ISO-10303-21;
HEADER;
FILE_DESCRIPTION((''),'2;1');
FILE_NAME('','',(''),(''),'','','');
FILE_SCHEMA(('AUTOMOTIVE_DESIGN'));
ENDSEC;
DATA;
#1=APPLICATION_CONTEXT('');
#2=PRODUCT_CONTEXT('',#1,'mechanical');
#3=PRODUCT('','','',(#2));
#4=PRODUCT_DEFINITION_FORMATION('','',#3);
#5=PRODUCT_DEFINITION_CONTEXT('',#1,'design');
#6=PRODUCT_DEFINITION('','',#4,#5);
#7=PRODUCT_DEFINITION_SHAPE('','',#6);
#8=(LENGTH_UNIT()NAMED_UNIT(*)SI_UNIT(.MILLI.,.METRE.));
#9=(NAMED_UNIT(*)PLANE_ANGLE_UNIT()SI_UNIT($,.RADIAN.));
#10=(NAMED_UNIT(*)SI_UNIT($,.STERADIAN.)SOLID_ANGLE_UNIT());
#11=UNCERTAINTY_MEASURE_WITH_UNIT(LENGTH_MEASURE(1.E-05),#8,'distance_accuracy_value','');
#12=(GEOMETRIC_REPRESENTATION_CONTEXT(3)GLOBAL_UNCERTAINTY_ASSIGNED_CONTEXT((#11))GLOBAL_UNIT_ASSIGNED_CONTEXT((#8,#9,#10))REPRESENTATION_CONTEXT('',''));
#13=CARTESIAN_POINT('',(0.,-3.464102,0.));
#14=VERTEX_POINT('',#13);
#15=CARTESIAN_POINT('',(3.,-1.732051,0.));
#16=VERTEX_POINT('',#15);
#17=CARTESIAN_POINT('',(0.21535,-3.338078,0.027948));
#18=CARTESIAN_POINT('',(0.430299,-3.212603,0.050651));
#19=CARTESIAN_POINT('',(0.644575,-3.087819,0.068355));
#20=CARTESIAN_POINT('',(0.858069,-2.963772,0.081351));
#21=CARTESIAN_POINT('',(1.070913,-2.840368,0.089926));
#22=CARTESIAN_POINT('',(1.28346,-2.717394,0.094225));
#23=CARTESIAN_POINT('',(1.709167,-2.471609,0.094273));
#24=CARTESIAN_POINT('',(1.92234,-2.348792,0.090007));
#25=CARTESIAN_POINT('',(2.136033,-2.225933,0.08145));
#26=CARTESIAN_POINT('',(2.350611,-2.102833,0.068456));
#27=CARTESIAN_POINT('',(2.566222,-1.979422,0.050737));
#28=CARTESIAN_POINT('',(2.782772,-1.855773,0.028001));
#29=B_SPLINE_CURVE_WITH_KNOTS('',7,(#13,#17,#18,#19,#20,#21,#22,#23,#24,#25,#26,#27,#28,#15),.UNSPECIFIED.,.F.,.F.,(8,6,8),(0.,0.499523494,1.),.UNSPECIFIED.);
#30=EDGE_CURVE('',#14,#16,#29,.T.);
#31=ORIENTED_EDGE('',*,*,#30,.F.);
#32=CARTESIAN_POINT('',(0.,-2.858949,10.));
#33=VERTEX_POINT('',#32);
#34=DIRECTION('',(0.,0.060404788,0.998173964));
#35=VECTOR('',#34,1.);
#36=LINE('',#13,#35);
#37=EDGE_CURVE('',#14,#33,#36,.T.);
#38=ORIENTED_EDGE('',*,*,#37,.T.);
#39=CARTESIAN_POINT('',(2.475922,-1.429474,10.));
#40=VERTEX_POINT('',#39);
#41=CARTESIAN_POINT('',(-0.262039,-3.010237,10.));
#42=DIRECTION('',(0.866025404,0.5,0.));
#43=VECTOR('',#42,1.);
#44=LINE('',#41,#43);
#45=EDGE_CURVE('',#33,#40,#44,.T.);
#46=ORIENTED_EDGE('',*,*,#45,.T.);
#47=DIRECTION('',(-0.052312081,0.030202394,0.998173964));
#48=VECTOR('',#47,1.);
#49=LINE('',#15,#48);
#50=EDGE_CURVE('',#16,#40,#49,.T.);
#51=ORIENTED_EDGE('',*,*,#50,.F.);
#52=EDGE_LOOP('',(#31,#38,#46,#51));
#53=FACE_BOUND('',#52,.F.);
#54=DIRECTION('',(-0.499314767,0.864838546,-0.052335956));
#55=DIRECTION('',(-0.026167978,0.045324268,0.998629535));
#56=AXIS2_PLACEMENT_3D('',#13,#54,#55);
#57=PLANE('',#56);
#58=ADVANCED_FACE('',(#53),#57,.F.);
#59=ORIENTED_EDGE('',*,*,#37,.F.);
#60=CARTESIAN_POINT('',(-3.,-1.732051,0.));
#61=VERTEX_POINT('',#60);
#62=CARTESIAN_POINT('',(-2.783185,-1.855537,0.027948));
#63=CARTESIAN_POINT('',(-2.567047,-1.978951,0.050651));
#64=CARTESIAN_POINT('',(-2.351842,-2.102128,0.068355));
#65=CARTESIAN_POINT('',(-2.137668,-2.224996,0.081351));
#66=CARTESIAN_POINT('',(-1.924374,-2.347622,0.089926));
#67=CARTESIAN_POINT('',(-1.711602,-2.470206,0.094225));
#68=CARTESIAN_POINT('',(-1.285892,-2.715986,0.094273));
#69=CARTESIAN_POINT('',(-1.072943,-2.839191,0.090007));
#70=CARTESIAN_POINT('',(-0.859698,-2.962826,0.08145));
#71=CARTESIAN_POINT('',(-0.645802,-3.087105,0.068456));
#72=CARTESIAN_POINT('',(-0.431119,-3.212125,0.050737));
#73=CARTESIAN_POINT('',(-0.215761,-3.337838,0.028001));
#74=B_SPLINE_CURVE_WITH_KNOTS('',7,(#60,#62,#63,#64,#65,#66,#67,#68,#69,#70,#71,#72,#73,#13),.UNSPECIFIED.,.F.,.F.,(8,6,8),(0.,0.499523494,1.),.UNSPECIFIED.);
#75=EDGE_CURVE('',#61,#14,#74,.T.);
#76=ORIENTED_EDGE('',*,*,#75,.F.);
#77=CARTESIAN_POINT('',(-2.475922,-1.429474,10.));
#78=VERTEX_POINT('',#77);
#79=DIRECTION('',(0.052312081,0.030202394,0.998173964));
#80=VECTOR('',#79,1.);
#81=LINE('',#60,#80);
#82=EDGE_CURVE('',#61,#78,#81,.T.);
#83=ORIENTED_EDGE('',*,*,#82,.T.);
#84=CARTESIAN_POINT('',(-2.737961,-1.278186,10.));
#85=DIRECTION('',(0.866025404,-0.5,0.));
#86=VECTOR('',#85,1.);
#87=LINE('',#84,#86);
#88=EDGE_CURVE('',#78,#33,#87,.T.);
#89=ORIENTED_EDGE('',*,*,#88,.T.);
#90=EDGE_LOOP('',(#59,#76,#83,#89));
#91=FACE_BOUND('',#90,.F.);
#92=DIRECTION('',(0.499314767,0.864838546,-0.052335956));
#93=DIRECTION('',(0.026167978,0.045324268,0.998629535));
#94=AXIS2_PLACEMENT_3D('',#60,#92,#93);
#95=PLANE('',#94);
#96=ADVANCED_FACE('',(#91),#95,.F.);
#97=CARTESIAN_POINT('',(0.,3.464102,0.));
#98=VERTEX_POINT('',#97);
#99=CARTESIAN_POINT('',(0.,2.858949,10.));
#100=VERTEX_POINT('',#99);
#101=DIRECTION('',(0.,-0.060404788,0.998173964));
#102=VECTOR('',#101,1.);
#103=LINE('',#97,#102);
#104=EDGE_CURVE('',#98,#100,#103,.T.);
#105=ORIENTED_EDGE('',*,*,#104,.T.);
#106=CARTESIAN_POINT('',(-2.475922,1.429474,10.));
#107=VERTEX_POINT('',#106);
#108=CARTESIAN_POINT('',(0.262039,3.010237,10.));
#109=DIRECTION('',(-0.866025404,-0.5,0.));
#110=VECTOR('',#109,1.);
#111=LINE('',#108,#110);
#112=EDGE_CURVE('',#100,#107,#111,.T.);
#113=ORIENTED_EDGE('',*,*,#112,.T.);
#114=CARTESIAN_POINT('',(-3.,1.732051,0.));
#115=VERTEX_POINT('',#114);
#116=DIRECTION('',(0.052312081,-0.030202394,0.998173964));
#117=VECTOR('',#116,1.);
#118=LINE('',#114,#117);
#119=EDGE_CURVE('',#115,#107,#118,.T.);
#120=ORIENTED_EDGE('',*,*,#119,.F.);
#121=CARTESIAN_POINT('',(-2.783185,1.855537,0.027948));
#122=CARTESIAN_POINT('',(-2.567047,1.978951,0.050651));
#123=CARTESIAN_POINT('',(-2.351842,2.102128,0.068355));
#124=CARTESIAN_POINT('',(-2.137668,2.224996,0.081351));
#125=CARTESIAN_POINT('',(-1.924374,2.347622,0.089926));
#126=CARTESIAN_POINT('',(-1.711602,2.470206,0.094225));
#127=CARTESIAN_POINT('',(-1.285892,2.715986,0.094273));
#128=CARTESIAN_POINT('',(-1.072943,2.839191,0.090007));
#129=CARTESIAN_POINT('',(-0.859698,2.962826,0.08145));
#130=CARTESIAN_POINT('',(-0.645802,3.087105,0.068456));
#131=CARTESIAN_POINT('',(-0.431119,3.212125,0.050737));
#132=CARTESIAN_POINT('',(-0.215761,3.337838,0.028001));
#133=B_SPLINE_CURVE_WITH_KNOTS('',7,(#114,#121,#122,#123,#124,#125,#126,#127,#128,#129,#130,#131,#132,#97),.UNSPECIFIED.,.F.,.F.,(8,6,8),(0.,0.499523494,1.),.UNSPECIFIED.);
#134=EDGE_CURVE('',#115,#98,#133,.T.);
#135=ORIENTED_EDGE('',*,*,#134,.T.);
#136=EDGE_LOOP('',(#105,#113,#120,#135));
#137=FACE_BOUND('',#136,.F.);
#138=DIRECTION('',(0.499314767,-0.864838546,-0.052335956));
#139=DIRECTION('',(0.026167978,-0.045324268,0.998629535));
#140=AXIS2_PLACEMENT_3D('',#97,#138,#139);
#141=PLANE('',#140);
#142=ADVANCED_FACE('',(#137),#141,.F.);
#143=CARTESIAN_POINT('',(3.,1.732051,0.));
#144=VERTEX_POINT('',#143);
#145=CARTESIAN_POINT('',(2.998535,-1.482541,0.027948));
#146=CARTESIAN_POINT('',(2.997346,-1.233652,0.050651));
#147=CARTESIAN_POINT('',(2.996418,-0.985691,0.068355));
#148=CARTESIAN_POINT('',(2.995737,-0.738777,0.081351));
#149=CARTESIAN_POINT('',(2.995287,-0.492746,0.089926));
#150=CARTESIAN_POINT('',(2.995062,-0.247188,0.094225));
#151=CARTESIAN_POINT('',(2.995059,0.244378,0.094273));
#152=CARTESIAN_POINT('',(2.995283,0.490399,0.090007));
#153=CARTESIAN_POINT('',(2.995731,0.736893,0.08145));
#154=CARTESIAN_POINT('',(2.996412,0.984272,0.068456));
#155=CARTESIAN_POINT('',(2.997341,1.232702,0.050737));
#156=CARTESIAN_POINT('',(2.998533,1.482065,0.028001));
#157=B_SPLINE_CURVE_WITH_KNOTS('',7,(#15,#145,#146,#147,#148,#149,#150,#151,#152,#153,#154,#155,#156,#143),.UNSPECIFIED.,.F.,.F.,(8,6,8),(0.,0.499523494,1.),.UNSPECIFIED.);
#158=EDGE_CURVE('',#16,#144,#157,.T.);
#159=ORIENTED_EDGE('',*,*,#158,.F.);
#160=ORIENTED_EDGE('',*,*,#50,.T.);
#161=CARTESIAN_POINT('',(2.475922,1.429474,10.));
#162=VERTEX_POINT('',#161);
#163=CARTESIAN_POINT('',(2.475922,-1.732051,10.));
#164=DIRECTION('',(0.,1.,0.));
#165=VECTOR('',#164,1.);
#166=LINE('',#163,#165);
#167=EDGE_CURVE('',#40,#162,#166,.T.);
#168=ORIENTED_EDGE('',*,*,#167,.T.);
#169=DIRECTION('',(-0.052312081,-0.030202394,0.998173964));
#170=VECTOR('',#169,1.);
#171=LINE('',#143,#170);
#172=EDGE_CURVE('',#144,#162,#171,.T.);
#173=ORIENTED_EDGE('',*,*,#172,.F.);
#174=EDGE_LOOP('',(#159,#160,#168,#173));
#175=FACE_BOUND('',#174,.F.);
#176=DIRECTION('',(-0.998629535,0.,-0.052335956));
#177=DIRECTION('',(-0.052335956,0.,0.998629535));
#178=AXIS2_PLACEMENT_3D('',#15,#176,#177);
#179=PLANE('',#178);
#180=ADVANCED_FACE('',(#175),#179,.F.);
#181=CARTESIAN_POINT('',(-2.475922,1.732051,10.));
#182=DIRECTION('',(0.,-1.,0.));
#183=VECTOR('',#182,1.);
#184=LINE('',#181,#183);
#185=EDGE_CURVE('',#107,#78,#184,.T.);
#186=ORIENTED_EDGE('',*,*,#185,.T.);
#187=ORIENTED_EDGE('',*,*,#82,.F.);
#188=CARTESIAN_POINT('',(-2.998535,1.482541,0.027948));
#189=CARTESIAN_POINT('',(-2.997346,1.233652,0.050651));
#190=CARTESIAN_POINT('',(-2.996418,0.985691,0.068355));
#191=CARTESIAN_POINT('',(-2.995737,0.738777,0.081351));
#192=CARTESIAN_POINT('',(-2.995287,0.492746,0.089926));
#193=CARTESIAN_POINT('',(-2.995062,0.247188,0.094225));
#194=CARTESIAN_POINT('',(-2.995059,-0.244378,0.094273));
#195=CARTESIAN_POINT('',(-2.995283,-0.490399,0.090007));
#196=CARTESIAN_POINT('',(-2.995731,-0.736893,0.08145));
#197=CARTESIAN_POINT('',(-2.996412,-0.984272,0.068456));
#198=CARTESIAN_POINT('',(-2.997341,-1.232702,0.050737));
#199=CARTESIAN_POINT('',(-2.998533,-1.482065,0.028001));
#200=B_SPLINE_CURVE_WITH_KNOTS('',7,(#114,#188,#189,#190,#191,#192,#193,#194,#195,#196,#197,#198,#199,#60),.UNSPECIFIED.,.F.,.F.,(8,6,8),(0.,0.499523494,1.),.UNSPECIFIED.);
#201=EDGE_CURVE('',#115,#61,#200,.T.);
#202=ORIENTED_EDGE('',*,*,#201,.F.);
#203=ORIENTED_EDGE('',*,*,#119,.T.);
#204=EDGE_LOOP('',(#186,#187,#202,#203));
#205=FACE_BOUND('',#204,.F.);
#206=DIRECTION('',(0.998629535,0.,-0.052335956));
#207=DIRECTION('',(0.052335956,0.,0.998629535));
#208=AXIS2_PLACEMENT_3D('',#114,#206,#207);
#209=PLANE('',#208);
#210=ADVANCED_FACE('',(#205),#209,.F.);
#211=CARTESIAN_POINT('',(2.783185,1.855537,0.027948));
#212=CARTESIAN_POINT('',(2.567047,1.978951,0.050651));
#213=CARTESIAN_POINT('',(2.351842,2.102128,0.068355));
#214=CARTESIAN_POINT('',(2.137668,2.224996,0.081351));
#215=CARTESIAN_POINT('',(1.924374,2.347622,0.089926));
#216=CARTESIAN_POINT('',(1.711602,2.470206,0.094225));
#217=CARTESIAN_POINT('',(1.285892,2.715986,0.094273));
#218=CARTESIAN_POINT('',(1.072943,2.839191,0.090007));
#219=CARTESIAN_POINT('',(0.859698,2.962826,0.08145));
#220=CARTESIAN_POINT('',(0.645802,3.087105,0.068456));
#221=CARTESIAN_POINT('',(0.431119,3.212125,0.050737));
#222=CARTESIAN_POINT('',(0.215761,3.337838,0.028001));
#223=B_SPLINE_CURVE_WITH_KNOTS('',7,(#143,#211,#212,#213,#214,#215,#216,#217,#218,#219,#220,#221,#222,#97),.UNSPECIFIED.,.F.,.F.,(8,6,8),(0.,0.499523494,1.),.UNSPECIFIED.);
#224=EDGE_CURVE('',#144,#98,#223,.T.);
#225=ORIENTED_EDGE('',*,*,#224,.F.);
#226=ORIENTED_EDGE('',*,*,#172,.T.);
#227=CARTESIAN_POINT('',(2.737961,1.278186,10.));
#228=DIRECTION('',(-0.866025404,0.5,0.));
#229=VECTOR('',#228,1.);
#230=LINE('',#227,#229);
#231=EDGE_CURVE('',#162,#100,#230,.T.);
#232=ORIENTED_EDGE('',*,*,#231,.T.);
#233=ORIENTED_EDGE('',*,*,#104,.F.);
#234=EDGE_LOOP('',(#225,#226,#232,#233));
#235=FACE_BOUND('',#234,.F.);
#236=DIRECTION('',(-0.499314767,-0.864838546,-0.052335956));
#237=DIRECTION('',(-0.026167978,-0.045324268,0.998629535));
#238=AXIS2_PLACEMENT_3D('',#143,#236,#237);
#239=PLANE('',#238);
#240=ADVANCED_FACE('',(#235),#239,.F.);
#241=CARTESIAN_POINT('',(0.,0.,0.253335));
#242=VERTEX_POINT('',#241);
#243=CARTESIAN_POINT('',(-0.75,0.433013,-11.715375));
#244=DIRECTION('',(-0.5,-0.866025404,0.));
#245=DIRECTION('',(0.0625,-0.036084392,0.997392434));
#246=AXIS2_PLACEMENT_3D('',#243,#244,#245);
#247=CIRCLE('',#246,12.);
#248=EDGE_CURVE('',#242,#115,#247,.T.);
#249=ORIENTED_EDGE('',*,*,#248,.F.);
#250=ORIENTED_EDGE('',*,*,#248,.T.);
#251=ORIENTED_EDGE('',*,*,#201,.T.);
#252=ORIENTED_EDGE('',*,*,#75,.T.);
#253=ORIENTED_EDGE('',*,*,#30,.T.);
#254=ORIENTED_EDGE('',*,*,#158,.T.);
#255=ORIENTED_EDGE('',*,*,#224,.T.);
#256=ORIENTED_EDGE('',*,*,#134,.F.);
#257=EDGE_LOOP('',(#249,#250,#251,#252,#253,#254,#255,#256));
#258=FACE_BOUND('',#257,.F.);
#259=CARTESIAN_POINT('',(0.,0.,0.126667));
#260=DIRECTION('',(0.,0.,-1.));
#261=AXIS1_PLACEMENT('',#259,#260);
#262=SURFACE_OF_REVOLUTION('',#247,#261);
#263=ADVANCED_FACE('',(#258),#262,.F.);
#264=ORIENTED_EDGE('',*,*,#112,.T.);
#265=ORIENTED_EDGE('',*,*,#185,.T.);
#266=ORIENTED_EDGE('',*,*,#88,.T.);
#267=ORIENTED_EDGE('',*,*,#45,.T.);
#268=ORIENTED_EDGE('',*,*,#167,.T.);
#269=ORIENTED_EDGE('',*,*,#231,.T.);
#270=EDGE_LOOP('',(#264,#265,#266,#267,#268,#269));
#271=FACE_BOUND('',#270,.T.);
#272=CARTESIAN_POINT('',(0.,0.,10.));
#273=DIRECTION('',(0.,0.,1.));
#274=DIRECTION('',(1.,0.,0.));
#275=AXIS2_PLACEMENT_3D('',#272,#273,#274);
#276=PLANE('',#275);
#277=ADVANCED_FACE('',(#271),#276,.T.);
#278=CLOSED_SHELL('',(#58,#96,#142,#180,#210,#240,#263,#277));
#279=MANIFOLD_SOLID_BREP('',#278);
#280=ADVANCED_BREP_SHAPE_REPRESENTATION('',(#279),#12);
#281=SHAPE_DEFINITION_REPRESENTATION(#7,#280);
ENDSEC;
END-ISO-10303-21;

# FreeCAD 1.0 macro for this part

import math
import FreeCAD as App
import Part
import Sketcher
Q = App.Units.Quantity


def add_polygon(sketch, points):
    """Adds a closed chain of lines whose ends are joined by coincident constraints."""
    first, n = sketch.GeometryCount, len(points)
    for a, b in zip(points, points[1:] + points[:1]):
        sketch.addGeometry(Part.LineSegment(App.Vector(*a, 0), App.Vector(*b, 0)), False)
    for i in range(n):
        sketch.addConstraint(Sketcher.Constraint("Coincident", first + i, 2, first + (i + 1) % n, 1))

doc = App.newDocument("Part")
body = doc.addObject("PartDesign::Body", "Body")

sketch1 = body.newObject("Sketcher::SketchObject", "Sketch")
sketch1.AttachmentSupport = (doc.getObject("XY_Plane"), [""])
sketch1.MapMode = "FlatFace"
add_polygon(sketch1, [(3, -1.7), (3, 1.7), (0, 3.5), (-3, 1.7), (-3, -1.7), (0, -3.5)])
sketch1.addConstraint(Sketcher.Constraint("Vertical", 0))
sketch1.addConstraint(Sketcher.Constraint("Vertical", 3))
sketch1.addConstraint(Sketcher.Constraint("Symmetric", 0, 2, 3, 2, -1, 1))
sketch1.addConstraint(Sketcher.Constraint("Symmetric", 1, 2, 4, 2, -1, 1))
sketch1.addConstraint(Sketcher.Constraint("PointOnObject", 1, 2, -2))
sketch1.addConstraint(Sketcher.Constraint("Parallel", 2, 5))
sketch1.addConstraint(Sketcher.Constraint("Horizontal", 0, 2, 2, 2))
sketch1.addConstraint(Sketcher.Constraint("Angle", 1, Q("150 deg")))
sketch1.addConstraint(Sketcher.Constraint("DistanceX", -1, 1, 0, 2, 3.0))
sketch1.addConstraint(Sketcher.Constraint("DistanceY", 0, 1, 0, 2, 3.464102))
pad1 = body.newObject("PartDesign::Pad", "Pad")
pad1.Profile = sketch1
pad1.Length = 10
pad1.TaperAngle = -3
body2 = doc.addObject("PartDesign::Body", "Body001")

sketch2 = body2.newObject("Sketcher::SketchObject", "Sketch001")
sketch2.Placement = App.Placement(App.Vector(0, 0, 0), App.Rotation(App.Vector(0.866025404, -0.5, 0), App.Vector(0, 0, 1), App.Vector(-0.5, -0.866025404, 0), "ZXY"))
sketch2.addGeometry(Part.LineSegment(App.Vector(0, 0, 0), App.Vector(0, 0.25, 0)), False)
sketch2.addGeometry(Part.ArcOfCircle(Part.Circle(App.Vector(-0.87, -11.72, 0), App.Vector(0, 0, 1), 12), math.radians(85.86), math.radians(102.5)), False)
sketch2.addGeometry(Part.LineSegment(App.Vector(-3.46, 0, 0), App.Vector(0, 0, 0)), False)
sketch2.addConstraint(Sketcher.Constraint("Coincident", 0, 2, 1, 1))
sketch2.addConstraint(Sketcher.Constraint("Coincident", 1, 2, 2, 1))
sketch2.addConstraint(Sketcher.Constraint("Coincident", 2, 2, 0, 1))
sketch2.addConstraint(Sketcher.Constraint("Vertical", 0))
sketch2.addConstraint(Sketcher.Constraint("Horizontal", 2))
sketch2.addConstraint(Sketcher.Constraint("Coincident", 2, 2, -1, 1))
sketch2.addConstraint(Sketcher.Constraint("Radius", 1, 12.0))
sketch2.addConstraint(Sketcher.Constraint("DistanceX", 2, 1, 2, 2, 3.464102))
sketch2.addConstraint(Sketcher.Constraint("DistanceY", 0, 1, 0, 2, 0.253335))
revolution = body2.newObject("PartDesign::Revolution", "Revolution")
revolution.Profile = sketch2
revolution.ReferenceAxis = (sketch2, ["V_Axis"])
revolution.Angle = 360
doc.recompute()

boolean = body.newObject("PartDesign::Boolean", "Boolean")
boolean.Type = "Cut"
boolean.addObjects([body2])

doc.recompute()
